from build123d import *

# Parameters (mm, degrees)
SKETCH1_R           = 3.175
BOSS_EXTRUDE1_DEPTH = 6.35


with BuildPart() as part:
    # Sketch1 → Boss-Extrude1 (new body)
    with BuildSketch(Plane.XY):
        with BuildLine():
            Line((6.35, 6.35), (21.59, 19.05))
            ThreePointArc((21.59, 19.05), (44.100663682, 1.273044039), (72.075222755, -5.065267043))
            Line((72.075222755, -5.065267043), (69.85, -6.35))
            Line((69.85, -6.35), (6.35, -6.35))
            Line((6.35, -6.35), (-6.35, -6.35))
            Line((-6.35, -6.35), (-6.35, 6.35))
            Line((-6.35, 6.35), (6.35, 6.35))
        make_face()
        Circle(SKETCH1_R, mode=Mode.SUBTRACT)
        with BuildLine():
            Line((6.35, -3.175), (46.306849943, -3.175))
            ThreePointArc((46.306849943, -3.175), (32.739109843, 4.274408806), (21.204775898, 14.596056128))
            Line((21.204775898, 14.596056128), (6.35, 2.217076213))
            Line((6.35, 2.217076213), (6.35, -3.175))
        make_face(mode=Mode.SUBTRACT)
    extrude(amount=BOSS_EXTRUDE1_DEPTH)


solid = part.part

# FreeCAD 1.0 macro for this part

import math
import FreeCAD as App
import Part
import Sketcher

V = App.Vector
Q = App.Units.Quantity

doc = App.newDocument("Part")
params = doc.addObject("Spreadsheet::Sheet", "Params")
for row, (alias, value) in enumerate([
    ("sketch1_diameter", "0.25 in"),
    ("sketch1_width", "3 in"),
    ("sketch1_width2", "0.5 in"),
    ("pad1_length", "0.25 in"),
], start=1):
    params.set(f"A{row}", alias)
    params.set(f"B{row}", "=" + value)
    params.setAlias(f"B{row}", alias)

body = doc.addObject("PartDesign::Body", "Body")

sketch1 = body.newObject("Sketcher::SketchObject", "Sketch")
sketch1.AttachmentSupport = (doc.getObject("XY_Plane"), [""])
sketch1.MapMode = "FlatFace"
sketch1.addGeometry([
    Part.LineSegment(V(21.6, 19.1, 0), V(6.3, 6.3, 0)),
    Part.LineSegment(V(6.3, 6.3, 0), V(-6.3, 6.3, 0)),
    Part.LineSegment(V(-6.3, 6.3, 0), V(-6.3, -6.3, 0)),
    Part.LineSegment(V(-6.3, -6.3, 0), V(69.8, -6.3, 0)),
    Part.LineSegment(V(69.8, -6.3, 0), V(72.1, -5.1, 0)),
    Part.ArcOfCircle(Part.Circle(V(72.1, 59.8, 0), V(0, 0, 1), 64.9), math.radians(-141), math.radians(-90)),
    Part.Circle(V(0, 0, 0), V(0, 0, 1), 3.2),
    Part.LineSegment(V(6.3, -3.2, 0), V(6.3, 2.2, 0)),
    Part.LineSegment(V(6.3, 2.2, 0), V(21.2, 14.6, 0)),
    Part.ArcOfCircle(Part.Circle(V(72.1, 59.8, 0), V(0, 0, 1), 68.1), math.radians(-138), math.radians(-112)),
    Part.LineSegment(V(46.3, -3.2, 0), V(6.3, -3.2, 0)),
], False)
sketch1.addConstraint([
    Sketcher.Constraint("Coincident", 0, 2, 1, 1),
    Sketcher.Constraint("Coincident", 1, 2, 2, 1),
    Sketcher.Constraint("Coincident", 2, 2, 3, 1),
    Sketcher.Constraint("Coincident", 3, 2, 4, 1),
    Sketcher.Constraint("Coincident", 4, 2, 5, 2),
    Sketcher.Constraint("Coincident", 5, 1, 0, 1),
    Sketcher.Constraint("Coincident", 7, 2, 8, 1),
    Sketcher.Constraint("Coincident", 8, 2, 9, 1),
    Sketcher.Constraint("Coincident", 9, 2, 10, 1),
    Sketcher.Constraint("Coincident", 10, 2, 7, 1),
    Sketcher.Constraint("Horizontal", 1),
    Sketcher.Constraint("Vertical", 2),
    Sketcher.Constraint("Horizontal", 3),
    Sketcher.Constraint("Vertical", 7),
    Sketcher.Constraint("Horizontal", 10),
    Sketcher.Constraint("Coincident", 6, 3, -1, 1),
    Sketcher.Constraint("Coincident", 9, 3, 5, 3),
    Sketcher.Constraint("Symmetric", 0, 2, 2, 2, -1, 1),
    Sketcher.Constraint("Parallel", 0, 8),
    Sketcher.Constraint("Vertical", 9, 3, 4, 2),
    Sketcher.Constraint("Vertical", 0, 2, 7, 2),
    Sketcher.Constraint("Equal", 1, 2),
    Sketcher.Constraint("Diameter", 6, Q("0.25 in")),
    Sketcher.Constraint("DistanceX", 3, 1, 3, 2, Q("3 in")),
    Sketcher.Constraint("DistanceX", 1, 2, 1, 1, Q("0.5 in")),
    Sketcher.Constraint("Angle", 4, Q("30 deg")),
    Sketcher.Constraint("DistanceY", 2, 2, 5, 1, Q("1 in")),
    Sketcher.Constraint("DistanceX", 0, 2, 5, 1, Q("0.6 in")),
    Sketcher.Constraint("DistanceY", 9, 2, -1, 1, Q("0.125 in")),
    Sketcher.Constraint("Radius", 5, Q("64.902947 mm")),
    Sketcher.Constraint("Radius", 9, Q("68.077947 mm")),
    Sketcher.Constraint("DistanceY", 7, 1, 7, 2, Q("5.392076 mm")),
])
sketch1.setExpression("Constraints[22]", "Params.sketch1_diameter")
sketch1.setExpression("Constraints[23]", "Params.sketch1_width")
sketch1.setExpression("Constraints[24]", "Params.sketch1_width2")
pad1 = body.newObject("PartDesign::Pad", "Pad")
pad1.Profile = sketch1
pad1.setExpression("Length", "Params.pad1_length")

doc.recompute()
